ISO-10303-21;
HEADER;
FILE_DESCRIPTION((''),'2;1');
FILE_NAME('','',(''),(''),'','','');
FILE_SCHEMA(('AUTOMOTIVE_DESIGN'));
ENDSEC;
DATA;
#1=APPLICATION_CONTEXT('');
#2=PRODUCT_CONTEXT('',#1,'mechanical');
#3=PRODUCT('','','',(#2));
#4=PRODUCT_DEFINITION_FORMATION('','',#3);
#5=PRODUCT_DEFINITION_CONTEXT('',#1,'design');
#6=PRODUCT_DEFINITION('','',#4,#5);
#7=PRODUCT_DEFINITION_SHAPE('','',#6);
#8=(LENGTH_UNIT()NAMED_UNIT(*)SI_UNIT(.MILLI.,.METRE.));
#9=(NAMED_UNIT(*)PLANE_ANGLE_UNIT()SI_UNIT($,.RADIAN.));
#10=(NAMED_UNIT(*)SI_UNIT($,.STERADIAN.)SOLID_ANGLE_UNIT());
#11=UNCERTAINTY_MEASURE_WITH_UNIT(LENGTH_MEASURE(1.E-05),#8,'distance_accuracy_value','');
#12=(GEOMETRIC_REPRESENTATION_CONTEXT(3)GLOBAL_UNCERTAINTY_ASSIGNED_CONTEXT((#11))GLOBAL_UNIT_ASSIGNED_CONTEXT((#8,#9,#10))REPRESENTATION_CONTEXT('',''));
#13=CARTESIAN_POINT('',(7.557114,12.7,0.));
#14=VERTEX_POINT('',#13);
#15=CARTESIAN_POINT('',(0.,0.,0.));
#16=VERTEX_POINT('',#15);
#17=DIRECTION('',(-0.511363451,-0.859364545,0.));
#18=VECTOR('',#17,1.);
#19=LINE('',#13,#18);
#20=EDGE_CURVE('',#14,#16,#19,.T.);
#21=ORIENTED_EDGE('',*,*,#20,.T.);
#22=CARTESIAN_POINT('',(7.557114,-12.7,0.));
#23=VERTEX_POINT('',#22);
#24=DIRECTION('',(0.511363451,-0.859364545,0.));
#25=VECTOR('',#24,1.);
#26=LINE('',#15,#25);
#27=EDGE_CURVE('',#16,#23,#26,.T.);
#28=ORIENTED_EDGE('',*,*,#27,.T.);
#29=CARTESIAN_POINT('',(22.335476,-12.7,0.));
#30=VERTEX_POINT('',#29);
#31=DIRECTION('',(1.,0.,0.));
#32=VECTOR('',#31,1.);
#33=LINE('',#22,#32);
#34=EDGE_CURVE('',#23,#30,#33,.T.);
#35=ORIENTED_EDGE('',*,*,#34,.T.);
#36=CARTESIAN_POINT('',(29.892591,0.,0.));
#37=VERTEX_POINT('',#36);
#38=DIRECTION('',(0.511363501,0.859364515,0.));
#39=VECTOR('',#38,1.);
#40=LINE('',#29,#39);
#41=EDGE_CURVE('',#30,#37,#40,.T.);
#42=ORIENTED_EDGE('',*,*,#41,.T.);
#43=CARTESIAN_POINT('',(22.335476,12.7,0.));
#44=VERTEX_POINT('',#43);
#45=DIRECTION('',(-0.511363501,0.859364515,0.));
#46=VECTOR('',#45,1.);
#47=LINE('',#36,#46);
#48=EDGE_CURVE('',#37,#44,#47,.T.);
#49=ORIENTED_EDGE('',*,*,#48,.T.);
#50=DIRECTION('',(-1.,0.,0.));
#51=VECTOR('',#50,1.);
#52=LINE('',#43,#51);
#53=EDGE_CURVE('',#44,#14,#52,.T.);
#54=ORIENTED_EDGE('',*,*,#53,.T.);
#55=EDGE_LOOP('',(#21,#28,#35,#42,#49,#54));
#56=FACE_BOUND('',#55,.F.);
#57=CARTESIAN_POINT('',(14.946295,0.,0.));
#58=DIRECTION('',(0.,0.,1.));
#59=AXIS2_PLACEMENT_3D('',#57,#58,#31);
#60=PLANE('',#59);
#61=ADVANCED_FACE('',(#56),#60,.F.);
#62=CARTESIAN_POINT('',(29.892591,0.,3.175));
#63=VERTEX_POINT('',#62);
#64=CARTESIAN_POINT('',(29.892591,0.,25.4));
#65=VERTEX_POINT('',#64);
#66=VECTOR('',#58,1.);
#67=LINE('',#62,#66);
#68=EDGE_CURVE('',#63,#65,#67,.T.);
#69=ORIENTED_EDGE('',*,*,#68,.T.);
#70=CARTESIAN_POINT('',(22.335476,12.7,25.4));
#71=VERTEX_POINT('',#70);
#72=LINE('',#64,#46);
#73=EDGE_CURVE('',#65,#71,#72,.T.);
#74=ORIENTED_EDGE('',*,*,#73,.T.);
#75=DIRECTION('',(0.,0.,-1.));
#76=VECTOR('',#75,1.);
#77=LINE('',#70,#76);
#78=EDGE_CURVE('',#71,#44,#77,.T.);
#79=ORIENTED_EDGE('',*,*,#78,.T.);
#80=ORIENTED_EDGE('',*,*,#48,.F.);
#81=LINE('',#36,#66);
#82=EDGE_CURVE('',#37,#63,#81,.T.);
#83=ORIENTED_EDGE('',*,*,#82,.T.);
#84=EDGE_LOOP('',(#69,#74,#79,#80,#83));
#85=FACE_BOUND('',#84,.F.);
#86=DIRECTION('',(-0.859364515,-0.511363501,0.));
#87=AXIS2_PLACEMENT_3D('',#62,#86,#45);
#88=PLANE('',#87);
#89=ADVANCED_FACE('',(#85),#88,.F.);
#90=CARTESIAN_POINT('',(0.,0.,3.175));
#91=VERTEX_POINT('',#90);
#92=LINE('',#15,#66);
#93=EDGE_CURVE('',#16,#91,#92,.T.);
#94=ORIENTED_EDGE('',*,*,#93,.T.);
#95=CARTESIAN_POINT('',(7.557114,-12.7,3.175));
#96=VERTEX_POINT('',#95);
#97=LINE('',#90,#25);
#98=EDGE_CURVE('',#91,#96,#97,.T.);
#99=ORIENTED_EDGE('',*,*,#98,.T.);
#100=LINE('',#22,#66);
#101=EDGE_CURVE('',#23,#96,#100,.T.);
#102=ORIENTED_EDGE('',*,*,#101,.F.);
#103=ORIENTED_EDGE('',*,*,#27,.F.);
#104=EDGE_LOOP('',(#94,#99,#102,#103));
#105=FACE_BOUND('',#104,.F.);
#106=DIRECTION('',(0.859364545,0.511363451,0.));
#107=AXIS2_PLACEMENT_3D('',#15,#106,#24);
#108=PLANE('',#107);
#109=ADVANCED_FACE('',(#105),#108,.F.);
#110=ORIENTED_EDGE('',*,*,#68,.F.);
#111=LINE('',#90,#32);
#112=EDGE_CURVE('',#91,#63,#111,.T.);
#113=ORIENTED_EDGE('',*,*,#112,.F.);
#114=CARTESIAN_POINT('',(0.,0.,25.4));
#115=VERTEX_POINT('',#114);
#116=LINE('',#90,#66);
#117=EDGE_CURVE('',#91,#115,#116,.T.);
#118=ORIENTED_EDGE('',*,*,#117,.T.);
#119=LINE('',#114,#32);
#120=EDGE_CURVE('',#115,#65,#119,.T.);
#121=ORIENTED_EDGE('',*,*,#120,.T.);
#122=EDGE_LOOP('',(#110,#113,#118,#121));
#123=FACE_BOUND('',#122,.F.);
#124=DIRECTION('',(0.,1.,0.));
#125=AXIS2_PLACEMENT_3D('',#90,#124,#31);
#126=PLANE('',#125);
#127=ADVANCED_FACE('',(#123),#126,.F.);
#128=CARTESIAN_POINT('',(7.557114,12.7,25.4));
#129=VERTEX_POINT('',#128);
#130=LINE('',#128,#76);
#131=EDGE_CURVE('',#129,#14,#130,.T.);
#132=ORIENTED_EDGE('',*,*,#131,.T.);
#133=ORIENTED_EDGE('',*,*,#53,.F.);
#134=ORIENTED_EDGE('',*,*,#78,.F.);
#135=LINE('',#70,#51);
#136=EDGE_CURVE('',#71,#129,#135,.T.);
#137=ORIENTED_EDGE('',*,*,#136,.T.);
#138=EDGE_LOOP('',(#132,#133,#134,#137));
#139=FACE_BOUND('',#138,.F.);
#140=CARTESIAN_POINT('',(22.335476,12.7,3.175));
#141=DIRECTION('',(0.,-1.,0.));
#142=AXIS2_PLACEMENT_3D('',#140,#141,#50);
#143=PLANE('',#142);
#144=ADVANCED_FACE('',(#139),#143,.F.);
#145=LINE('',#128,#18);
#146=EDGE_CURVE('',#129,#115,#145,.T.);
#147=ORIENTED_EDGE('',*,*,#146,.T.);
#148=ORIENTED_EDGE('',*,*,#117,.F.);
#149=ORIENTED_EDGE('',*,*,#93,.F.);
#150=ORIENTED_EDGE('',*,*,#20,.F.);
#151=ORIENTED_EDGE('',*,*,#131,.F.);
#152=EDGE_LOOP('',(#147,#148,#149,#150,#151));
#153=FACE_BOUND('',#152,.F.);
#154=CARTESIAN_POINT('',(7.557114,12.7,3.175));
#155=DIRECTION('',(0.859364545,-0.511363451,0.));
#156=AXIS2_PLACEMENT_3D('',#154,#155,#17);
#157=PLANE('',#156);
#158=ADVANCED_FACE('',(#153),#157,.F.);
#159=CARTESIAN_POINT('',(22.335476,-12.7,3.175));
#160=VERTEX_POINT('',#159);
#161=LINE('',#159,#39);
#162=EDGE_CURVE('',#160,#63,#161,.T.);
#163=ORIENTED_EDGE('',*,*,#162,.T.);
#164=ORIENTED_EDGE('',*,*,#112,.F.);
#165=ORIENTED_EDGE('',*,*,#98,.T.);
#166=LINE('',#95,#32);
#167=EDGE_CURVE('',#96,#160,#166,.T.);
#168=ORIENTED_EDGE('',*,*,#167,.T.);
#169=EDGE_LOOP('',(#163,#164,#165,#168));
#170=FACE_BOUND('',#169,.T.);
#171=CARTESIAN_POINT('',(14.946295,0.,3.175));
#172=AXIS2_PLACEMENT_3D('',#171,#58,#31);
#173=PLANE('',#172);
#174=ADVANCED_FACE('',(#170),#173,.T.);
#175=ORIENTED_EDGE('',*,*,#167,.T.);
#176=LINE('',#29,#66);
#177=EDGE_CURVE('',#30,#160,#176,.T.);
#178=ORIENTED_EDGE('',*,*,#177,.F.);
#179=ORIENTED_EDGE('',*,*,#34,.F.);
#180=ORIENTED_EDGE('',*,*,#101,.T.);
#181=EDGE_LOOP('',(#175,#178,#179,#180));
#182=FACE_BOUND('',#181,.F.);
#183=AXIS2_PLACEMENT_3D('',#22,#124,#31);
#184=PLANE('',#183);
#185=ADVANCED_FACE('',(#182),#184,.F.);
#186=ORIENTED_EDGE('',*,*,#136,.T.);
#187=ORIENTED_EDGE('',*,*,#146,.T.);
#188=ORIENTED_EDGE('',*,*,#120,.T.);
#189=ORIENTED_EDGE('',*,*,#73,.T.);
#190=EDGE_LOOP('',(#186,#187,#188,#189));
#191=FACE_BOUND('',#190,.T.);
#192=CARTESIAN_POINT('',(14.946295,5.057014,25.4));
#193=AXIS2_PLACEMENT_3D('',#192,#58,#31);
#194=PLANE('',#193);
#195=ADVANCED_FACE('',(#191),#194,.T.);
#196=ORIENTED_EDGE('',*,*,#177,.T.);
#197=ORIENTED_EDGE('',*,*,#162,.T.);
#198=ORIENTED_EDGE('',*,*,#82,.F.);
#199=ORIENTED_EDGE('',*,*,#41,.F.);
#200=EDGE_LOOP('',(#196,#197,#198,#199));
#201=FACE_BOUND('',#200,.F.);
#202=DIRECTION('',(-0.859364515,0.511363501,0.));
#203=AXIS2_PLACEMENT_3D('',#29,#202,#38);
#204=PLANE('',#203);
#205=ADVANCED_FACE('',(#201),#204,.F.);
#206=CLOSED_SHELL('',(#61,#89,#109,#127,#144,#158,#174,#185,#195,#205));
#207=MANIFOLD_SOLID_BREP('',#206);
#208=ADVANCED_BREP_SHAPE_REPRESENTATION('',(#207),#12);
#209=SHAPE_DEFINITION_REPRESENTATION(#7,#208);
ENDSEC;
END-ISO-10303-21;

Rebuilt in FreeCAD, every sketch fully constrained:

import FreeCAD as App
import Part
import Sketcher
Q = App.Units.Quantity

doc = App.newDocument("Part")
body = doc.addObject("PartDesign::Body", "Body")

sketch1 = body.newObject("Sketcher::SketchObject", "Sketch")
sketch1.AttachmentSupport = (doc.getObject("XY_Plane"), [""])
sketch1.MapMode = "FlatFace"
sketch1.addGeometry([
    Part.LineSegment(App.Vector(8, 13, 0), App.Vector(0, 0, 0)),
    Part.LineSegment(App.Vector(0, 0, 0), App.Vector(8, -13, 0)),
    Part.LineSegment(App.Vector(8, -13, 0), App.Vector(22, -13, 0)),
    Part.LineSegment(App.Vector(22, -13, 0), App.Vector(30, 0, 0)),
    Part.LineSegment(App.Vector(30, 0, 0), App.Vector(22, 13, 0)),
    Part.LineSegment(App.Vector(22, 13, 0), App.Vector(8, 13, 0)),
], False)
sketch1.addConstraint([
    Sketcher.Constraint("Coincident", 0, 2, 1, 1),
    Sketcher.Constraint("Coincident", 1, 2, 2, 1),
    Sketcher.Constraint("Coincident", 2, 2, 3, 1),
    Sketcher.Constraint("Coincident", 3, 2, 4, 1),
    Sketcher.Constraint("Coincident", 4, 2, 5, 1),
    Sketcher.Constraint("Coincident", 5, 2, 0, 1),
    Sketcher.Constraint("Horizontal", 2),
    Sketcher.Constraint("Horizontal", 5),
    Sketcher.Constraint("Coincident", 0, 2, -1, 1),
    Sketcher.Constraint("Symmetric", 2, 2, 4, 2, -1),
    Sketcher.Constraint("PointOnObject", 3, 2, -1),
    Sketcher.Constraint("Parallel", 0, 3),
    Sketcher.Constraint("Parallel", 1, 4),
    Sketcher.Constraint("DistanceY", 2, 2, 4, 2, Q("1 in")),
    Sketcher.Constraint("Distance", 0, Q("14.778362 mm")),
    Sketcher.Constraint("DistanceX", 2, 1, 2, 2, Q("14.778362 mm")),
])
pad1 = body.newObject("PartDesign::Pad", "Pad")
pad1.Profile = sketch1
pad1.Length = Q("0.125 in")

sketch2 = body.newObject("Sketcher::SketchObject", "Sketch001")
sketch2.AttachmentSupport = (doc.getObject("XY_Plane"), [""])
sketch2.MapMode = "FlatFace"
sketch2.AttachmentOffset = App.Placement(App.Vector(0, 0, 0.125 * 25.4), App.Rotation())
sketch2.addGeometry([
    Part.LineSegment(App.Vector(8, 13, 0), App.Vector(0, 0, 0)),
    Part.LineSegment(App.Vector(0, 0, 0), App.Vector(30, 0, 0)),
    Part.LineSegment(App.Vector(30, 0, 0), App.Vector(22, 13, 0)),
    Part.LineSegment(App.Vector(22, 13, 0), App.Vector(8, 13, 0)),
], False)
sketch2.addConstraint([
    Sketcher.Constraint("Coincident", 0, 2, 1, 1),
    Sketcher.Constraint("Coincident", 1, 2, 2, 1),
    Sketcher.Constraint("Coincident", 2, 2, 3, 1),
    Sketcher.Constraint("Coincident", 3, 2, 0, 1),
    Sketcher.Constraint("Horizontal", 1),
    Sketcher.Constraint("Horizontal", 3),
    Sketcher.Constraint("Coincident", 0, 2, -1, 1),
    Sketcher.Constraint("Equal", 0, 2),
    Sketcher.Constraint("DistanceY", -1, 1, 2, 2, Q("0.5 in")),
    Sketcher.Constraint("DistanceX", 1, 1, 1, 2, Q("29.892591 mm")),
    Sketcher.Constraint("Distance", 0, Q("14.778362 mm")),
])
pad2 = body.newObject("PartDesign::Pad", "Pad001")
pad2.Profile = sketch2
pad2.Length = Q("0.875 in")

doc.recompute()
